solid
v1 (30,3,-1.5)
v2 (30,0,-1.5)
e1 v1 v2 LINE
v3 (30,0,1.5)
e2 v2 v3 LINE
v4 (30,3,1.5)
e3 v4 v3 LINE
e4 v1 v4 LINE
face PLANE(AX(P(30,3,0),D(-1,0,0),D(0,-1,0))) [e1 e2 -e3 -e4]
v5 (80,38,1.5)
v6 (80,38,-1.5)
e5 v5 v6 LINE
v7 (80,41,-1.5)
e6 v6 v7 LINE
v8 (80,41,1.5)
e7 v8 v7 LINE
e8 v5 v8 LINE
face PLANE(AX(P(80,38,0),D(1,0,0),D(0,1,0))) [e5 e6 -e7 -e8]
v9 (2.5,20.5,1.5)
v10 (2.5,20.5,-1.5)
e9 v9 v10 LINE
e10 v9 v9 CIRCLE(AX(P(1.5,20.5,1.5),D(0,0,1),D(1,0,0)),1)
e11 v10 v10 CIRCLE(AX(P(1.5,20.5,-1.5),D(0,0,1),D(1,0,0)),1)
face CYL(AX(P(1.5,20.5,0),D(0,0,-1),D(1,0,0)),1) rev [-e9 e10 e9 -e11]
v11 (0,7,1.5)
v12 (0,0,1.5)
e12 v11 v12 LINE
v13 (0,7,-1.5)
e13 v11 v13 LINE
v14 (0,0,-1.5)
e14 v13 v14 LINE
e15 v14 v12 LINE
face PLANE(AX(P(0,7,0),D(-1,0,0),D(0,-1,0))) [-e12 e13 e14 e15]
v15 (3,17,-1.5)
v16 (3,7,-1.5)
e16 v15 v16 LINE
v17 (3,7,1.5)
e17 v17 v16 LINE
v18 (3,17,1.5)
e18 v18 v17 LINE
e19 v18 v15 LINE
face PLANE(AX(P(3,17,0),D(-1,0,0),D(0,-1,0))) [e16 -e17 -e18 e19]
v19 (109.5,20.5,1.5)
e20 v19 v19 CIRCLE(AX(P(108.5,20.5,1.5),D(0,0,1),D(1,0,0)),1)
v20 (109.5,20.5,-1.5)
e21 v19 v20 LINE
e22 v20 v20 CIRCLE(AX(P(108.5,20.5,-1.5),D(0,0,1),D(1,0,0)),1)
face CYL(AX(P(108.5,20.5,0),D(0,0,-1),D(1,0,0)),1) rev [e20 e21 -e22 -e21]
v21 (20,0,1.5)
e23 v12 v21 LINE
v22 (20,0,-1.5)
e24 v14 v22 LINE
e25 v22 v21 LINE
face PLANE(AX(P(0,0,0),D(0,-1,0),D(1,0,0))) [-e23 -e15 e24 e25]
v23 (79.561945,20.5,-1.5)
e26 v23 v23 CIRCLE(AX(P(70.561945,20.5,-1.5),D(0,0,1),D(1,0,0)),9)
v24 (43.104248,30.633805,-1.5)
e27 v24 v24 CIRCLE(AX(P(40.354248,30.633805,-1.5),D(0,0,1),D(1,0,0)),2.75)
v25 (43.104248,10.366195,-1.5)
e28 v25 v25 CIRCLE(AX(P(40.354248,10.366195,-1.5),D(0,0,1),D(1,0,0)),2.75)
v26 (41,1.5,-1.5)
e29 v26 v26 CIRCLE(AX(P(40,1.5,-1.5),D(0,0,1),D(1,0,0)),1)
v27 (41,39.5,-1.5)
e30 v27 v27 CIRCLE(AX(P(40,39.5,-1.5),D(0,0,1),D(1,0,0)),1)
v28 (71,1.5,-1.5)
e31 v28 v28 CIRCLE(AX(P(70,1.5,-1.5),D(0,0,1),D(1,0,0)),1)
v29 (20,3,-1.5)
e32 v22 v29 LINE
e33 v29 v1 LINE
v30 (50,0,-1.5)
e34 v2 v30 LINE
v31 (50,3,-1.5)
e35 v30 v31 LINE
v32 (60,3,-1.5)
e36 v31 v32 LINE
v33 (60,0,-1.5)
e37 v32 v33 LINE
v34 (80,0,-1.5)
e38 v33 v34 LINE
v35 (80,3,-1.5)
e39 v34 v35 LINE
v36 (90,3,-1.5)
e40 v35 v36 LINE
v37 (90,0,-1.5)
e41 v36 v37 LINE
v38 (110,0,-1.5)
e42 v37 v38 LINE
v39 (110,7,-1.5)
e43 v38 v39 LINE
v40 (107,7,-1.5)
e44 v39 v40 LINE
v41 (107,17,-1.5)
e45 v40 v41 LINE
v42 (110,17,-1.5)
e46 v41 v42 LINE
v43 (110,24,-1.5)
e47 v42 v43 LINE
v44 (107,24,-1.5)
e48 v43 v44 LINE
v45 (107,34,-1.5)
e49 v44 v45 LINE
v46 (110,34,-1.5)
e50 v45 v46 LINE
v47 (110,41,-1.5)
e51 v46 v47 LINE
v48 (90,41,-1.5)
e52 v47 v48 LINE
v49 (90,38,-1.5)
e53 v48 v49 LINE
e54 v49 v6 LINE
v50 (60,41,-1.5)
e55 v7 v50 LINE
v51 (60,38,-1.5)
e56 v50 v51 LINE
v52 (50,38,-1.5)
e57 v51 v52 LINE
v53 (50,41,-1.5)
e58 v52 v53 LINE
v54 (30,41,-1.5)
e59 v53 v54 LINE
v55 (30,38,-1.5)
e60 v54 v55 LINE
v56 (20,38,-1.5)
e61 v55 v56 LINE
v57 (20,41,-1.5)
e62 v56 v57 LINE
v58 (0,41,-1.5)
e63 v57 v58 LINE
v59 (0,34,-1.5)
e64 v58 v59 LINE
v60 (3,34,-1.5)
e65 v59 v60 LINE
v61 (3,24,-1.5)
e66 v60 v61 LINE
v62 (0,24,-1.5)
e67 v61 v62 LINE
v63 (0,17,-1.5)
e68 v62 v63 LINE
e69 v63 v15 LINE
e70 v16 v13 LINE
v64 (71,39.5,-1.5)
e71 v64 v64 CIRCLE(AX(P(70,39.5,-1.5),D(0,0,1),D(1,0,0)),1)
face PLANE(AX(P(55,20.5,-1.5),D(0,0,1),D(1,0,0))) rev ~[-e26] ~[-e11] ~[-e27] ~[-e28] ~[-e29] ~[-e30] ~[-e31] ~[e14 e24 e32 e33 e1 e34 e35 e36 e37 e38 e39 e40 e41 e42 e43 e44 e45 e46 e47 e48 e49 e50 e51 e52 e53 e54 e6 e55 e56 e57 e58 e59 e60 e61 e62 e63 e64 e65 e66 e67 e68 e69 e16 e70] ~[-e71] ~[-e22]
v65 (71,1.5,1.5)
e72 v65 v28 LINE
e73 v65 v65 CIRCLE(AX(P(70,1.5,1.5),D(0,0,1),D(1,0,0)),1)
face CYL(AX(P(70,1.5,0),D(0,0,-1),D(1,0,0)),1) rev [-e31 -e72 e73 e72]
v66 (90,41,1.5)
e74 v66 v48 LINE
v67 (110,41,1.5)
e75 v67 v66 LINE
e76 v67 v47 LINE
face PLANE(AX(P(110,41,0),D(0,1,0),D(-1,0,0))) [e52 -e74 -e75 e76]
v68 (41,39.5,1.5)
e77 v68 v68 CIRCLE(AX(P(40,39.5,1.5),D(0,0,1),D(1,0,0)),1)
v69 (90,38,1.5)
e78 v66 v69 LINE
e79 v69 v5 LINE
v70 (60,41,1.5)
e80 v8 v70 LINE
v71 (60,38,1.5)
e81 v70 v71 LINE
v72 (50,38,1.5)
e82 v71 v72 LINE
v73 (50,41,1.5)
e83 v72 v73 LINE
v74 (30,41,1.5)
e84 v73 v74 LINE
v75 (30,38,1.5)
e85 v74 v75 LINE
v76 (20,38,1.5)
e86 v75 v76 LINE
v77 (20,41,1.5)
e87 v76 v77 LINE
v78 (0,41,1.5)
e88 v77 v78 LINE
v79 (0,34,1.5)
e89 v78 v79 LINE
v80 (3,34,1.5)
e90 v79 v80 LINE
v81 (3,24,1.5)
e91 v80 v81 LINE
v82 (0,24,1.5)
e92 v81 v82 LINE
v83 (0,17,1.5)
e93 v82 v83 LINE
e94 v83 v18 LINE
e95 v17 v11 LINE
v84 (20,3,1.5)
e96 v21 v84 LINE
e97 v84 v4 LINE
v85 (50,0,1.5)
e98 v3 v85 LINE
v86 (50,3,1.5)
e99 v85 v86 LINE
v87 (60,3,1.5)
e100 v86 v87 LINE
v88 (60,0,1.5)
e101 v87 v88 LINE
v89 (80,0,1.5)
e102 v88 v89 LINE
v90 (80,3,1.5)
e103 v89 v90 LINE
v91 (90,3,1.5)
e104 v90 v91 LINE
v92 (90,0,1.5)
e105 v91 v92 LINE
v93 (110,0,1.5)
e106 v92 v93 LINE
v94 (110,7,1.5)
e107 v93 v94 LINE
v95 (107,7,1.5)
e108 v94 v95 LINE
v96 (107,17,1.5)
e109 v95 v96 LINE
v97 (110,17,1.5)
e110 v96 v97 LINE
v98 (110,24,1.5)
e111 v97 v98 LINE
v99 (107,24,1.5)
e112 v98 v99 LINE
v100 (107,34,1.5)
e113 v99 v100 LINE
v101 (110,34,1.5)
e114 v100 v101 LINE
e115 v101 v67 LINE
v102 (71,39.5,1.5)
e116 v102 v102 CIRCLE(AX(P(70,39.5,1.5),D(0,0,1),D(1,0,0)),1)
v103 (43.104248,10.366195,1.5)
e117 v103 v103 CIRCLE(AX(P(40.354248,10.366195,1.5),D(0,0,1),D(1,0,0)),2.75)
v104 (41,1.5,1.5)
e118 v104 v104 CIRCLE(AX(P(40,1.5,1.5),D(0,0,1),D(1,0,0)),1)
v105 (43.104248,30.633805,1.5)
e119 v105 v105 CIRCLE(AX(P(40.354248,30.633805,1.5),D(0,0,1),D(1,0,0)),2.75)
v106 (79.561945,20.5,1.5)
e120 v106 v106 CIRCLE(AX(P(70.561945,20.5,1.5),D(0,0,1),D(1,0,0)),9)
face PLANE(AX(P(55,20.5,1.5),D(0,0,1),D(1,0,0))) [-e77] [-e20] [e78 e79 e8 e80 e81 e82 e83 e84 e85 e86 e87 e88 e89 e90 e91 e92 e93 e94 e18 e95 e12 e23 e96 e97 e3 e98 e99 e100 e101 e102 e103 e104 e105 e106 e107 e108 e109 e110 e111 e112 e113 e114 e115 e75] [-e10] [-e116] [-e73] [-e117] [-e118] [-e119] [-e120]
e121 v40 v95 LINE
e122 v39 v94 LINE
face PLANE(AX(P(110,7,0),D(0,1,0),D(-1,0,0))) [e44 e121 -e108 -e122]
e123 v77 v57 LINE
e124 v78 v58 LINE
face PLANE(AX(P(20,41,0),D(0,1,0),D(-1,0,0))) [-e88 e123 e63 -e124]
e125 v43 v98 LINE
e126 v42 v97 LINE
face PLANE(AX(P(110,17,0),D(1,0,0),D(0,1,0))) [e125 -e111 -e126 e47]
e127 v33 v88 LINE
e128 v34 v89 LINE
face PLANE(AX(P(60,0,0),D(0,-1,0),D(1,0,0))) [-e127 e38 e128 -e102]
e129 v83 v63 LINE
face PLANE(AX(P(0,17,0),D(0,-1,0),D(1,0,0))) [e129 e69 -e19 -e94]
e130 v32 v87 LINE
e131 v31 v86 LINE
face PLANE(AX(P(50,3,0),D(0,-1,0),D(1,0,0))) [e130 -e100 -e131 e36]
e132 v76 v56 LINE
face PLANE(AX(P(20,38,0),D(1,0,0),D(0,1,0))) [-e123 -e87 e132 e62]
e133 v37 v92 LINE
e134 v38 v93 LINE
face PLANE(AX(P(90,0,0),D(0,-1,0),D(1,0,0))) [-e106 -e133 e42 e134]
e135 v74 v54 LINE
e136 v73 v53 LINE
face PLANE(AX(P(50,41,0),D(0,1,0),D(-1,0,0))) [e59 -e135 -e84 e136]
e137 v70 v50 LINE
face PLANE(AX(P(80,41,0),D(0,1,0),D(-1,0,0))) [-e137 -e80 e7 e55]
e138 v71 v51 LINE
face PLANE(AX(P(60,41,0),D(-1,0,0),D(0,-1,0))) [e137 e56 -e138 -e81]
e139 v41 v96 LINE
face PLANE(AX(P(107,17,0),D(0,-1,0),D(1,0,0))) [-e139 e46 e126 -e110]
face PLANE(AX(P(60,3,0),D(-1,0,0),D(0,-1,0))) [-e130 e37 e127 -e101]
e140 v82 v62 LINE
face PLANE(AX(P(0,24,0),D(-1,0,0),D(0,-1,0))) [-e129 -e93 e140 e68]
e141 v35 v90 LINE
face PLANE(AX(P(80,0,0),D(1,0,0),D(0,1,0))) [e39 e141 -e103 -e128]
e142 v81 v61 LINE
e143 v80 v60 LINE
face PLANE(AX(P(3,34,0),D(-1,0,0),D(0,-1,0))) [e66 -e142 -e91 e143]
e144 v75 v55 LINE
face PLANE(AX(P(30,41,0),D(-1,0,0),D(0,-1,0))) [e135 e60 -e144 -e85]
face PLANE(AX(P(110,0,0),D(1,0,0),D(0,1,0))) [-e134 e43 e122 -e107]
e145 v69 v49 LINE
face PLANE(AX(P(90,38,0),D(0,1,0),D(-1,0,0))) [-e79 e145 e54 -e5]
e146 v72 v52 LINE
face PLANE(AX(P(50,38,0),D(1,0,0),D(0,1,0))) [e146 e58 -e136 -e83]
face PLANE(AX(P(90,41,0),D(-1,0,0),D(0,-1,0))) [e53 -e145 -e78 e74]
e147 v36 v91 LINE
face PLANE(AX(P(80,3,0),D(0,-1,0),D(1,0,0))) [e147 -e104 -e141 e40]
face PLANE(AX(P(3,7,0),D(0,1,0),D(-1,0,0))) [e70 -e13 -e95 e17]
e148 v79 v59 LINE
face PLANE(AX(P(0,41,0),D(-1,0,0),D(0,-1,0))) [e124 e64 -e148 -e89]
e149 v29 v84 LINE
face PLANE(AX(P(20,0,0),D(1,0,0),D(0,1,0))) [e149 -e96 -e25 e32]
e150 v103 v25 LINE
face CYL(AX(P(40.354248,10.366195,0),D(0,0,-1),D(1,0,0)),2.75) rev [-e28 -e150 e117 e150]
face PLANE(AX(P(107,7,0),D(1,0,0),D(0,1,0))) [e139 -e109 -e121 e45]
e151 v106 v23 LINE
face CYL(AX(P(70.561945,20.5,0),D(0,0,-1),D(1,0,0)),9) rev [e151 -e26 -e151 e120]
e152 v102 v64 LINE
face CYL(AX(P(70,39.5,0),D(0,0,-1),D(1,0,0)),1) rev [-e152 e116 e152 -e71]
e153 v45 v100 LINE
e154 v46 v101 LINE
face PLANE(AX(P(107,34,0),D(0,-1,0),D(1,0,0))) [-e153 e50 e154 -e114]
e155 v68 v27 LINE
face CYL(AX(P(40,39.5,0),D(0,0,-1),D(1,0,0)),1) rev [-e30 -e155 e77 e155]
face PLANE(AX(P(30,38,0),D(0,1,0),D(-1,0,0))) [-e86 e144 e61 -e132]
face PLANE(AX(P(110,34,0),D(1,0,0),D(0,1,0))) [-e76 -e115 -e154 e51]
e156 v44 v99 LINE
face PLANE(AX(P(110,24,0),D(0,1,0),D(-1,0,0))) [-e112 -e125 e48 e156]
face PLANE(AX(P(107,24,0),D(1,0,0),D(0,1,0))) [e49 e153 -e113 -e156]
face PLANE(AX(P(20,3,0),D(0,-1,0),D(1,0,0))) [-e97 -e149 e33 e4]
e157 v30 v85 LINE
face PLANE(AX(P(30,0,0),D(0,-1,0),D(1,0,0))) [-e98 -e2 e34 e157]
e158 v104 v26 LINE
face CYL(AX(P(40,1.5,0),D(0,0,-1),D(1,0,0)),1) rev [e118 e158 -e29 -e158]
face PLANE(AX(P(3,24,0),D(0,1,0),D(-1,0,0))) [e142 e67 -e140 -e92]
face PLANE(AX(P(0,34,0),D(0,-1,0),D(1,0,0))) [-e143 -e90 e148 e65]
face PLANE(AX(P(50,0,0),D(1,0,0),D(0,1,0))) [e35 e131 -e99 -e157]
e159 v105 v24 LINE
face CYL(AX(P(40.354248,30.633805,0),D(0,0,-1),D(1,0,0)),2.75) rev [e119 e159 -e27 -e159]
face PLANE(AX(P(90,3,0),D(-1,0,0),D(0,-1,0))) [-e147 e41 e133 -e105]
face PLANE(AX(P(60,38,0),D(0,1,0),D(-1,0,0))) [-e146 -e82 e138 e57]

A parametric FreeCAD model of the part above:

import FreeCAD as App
import Part
import Sketcher

V = App.Vector
Q = App.Units.Quantity


def add_polygon(sketch, points):
    """Adds a closed chain of lines whose ends are joined by coincident constraints."""
    first, n = sketch.GeometryCount, len(points)
    for a, b in zip(points, points[1:] + points[:1]):
        sketch.addGeometry(Part.LineSegment(App.Vector(*a, 0), App.Vector(*b, 0)), False)
    for i in range(n):
        sketch.addConstraint(Sketcher.Constraint("Coincident", first + i, 2, first + (i + 1) % n, 1))

doc = App.newDocument("Part")
body = doc.addObject("PartDesign::Body", "Body")

sketch1 = body.newObject("Sketcher::SketchObject", "Sketch")
sketch1.AttachmentSupport = (doc.getObject("XY_Plane"), [""])
sketch1.MapMode = "FlatFace"
add_polygon(sketch1, [(0, 7), (0, 0), (20, 0), (20, 3), (30, 3), (30, 0), (50, 0), (50, 3), (60, 3), (60, 0), (80, 0), (80, 3), (90, 3), (90, 0), (110, 0), (110, 7), (107, 7), (107, 17), (110, 17), (110, 24), (107, 24), (107, 34), (110, 34), (110, 41), (90, 41), (90, 38), (80, 38), (80, 41), (60, 41), (60, 38), (50, 38), (50, 41), (30, 41), (30, 38), (20, 38), (20, 41), (0, 41), (0, 34), (3, 34), (3, 24), (0, 24), (0, 17), (3, 17), (3, 7)])
sketch1.addGeometry(Part.Circle(V(40, 1.5, 0), V(0, 0, 1), 1), False)
sketch1.addGeometry(Part.Circle(V(40.4, 10.4, 0), V(0, 0, 1), 2.8), False)
sketch1.addGeometry(Part.Circle(V(70, 1.5, 0), V(0, 0, 1), 1), False)
sketch1.addGeometry(Part.Circle(V(1.5, 20.5, 0), V(0, 0, 1), 1), False)
sketch1.addGeometry(Part.Circle(V(40.4, 30.6, 0), V(0, 0, 1), 2.8), False)
sketch1.addGeometry(Part.Circle(V(40, 39.5, 0), V(0, 0, 1), 1), False)
sketch1.addGeometry(Part.Circle(V(70.6, 20.5, 0), V(0, 0, 1), 9), False)
sketch1.addGeometry(Part.Circle(V(108.5, 20.5, 0), V(0, 0, 1), 1), False)
sketch1.addGeometry(Part.Circle(V(70, 39.5, 0), V(0, 0, 1), 1), False)
sketch1.addConstraint([
    Sketcher.Constraint("Vertical", 0),
    Sketcher.Constraint("Horizontal", 1),
    Sketcher.Constraint("Vertical", 2),
    Sketcher.Constraint("Horizontal", 3),
    Sketcher.Constraint("Vertical", 4),
    Sketcher.Constraint("Horizontal", 5),
    Sketcher.Constraint("Vertical", 6),
    Sketcher.Constraint("Horizontal", 7),
    Sketcher.Constraint("Vertical", 8),
    Sketcher.Constraint("Horizontal", 9),
    Sketcher.Constraint("Vertical", 10),
    Sketcher.Constraint("Horizontal", 11),
    Sketcher.Constraint("Vertical", 12),
    Sketcher.Constraint("Horizontal", 13),
    Sketcher.Constraint("Vertical", 14),
    Sketcher.Constraint("Horizontal", 15),
    Sketcher.Constraint("Vertical", 16),
    Sketcher.Constraint("Horizontal", 17),
    Sketcher.Constraint("Vertical", 18),
    Sketcher.Constraint("Horizontal", 19),
    Sketcher.Constraint("Vertical", 20),
    Sketcher.Constraint("Horizontal", 21),
    Sketcher.Constraint("Vertical", 22),
    Sketcher.Constraint("Horizontal", 23),
    Sketcher.Constraint("Vertical", 24),
    Sketcher.Constraint("Horizontal", 25),
    Sketcher.Constraint("Vertical", 26),
    Sketcher.Constraint("Horizontal", 27),
    Sketcher.Constraint("Vertical", 28),
    Sketcher.Constraint("Horizontal", 29),
    Sketcher.Constraint("Vertical", 30),
    Sketcher.Constraint("Horizontal", 31),
    Sketcher.Constraint("Vertical", 32),
    Sketcher.Constraint("Horizontal", 33),
    Sketcher.Constraint("Vertical", 34),
    Sketcher.Constraint("Horizontal", 35),
    Sketcher.Constraint("Vertical", 36),
    Sketcher.Constraint("Horizontal", 37),
    Sketcher.Constraint("Vertical", 38),
    Sketcher.Constraint("Horizontal", 39),
    Sketcher.Constraint("Vertical", 40),
    Sketcher.Constraint("Horizontal", 41),
    Sketcher.Constraint("Vertical", 42),
    Sketcher.Constraint("Horizontal", 43),
    Sketcher.Constraint("Coincident", 0, 2, -1, 1),
    Sketcher.Constraint("Equal", 44, 46),
    Sketcher.Constraint("Equal", 46, 47),
    Sketcher.Constraint("Equal", 45, 48),
    Sketcher.Constraint("Equal", 47, 49),
    Sketcher.Constraint("Equal", 49, 51),
    Sketcher.Constraint("Equal", 51, 52),
    Sketcher.Constraint("PointOnObject", 4, 2, -1),
    Sketcher.Constraint("PointOnObject", 8, 2, -1),
    Sketcher.Constraint("PointOnObject", 12, 2, -1),
    Sketcher.Constraint("PointOnObject", 35, 2, -2),
    Sketcher.Constraint("PointOnObject", 39, 2, -2),
    Sketcher.Constraint("Horizontal", 44, 3, 46, 3),
    Sketcher.Constraint("Horizontal", 47, 3, 50, 3),
    Sketcher.Constraint("Horizontal", 50, 3, 51, 3),
    Sketcher.Constraint("Horizontal", 49, 3, 52, 3),
    Sketcher.Constraint("Horizontal", 3, 2, 6, 2),
    Sketcher.Constraint("Horizontal", 7, 2, 10, 2),
    Sketcher.Constraint("Horizontal", 23, 2, 26, 2),
    Sketcher.Constraint("Horizontal", 25, 2, 28, 2),
    Sketcher.Constraint("Horizontal", 27, 2, 30, 2),
    Sketcher.Constraint("Horizontal", 29, 2, 32, 2),
    Sketcher.Constraint("Horizontal", 31, 2, 34, 2),
    Sketcher.Constraint("Horizontal", 21, 2, 36, 2),
    Sketcher.Constraint("Horizontal", 19, 2, 38, 2),
    Sketcher.Constraint("Horizontal", 17, 2, 40, 2),
    Sketcher.Constraint("Horizontal", 15, 2, 42, 2),
    Sketcher.Constraint("Vertical", 45, 3, 48, 3),
    Sketcher.Constraint("Vertical", 44, 3, 49, 3),
    Sketcher.Constraint("Vertical", 46, 3, 52, 3),
    Sketcher.Constraint("Vertical", 14, 2, 17, 2),
    Sketcher.Constraint("Vertical", 16, 2, 19, 2),
    Sketcher.Constraint("Vertical", 18, 2, 21, 2),
    Sketcher.Constraint("Vertical", 12, 2, 23, 2),
    Sketcher.Constraint("Vertical", 10, 2, 25, 2),
    Sketcher.Constraint("Vertical", 8, 2, 27, 2),
    Sketcher.Constraint("Vertical", 6, 2, 29, 2),
    Sketcher.Constraint("Vertical", 4, 2, 31, 2),
    Sketcher.Constraint("Vertical", 2, 2, 33, 2),
    Sketcher.Constraint("Vertical", 38, 2, 41, 2),
    Sketcher.Constraint("Equal", 1, 5),
    Sketcher.Constraint("Equal", 3, 7),
    Sketcher.Constraint("Equal", 5, 9),
    Sketcher.Constraint("Equal", 7, 11),
    Sketcher.Constraint("Equal", 9, 13),
    Sketcher.Constraint("Equal", 21, 37),
    Sketcher.Constraint("Equal", 43, 2),
    Sketcher.Constraint("Equal", 33, 16),
    Sketcher.Constraint("Equal", 14, 18),
    Sketcher.Constraint("Equal", 16, 20),
    Sketcher.Constraint("Equal", 18, 22),
    Sketcher.Constraint("Equal", 12, 24),
    Sketcher.Constraint("Diameter", 44, Q("2 mm")),
    Sketcher.Constraint("Diameter", 50, Q("18 mm")),
    Sketcher.Constraint("Diameter", 45, Q("5.5 mm")),
    Sketcher.Constraint("DistanceX", 1, 1, 1, 2, Q("20 mm")),
    Sketcher.Constraint("DistanceX", 3, 1, 3, 2, Q("10 mm")),
    Sketcher.Constraint("DistanceX", 15, 2, 15, 1, Q("3 mm")),
    Sketcher.Constraint("DistanceY", 0, 2, 0, 1, Q("7 mm")),
    Sketcher.Constraint("DistanceX", -1, 1, 44, 3, Q("40 mm")),
    Sketcher.Constraint("DistanceX", -1, 1, 46, 3, Q("70 mm")),
    Sketcher.Constraint("DistanceY", 44, 3, 47, 3, Q("19 mm")),
    Sketcher.Constraint("DistanceY", 44, 3, 49, 3, Q("38 mm")),
    Sketcher.Constraint("DistanceY", -1, 1, 44, 3, Q("1.5 mm")),
    Sketcher.Constraint("DistanceX", -1, 1, 47, 3, Q("1.5 mm")),
    Sketcher.Constraint("DistanceX", -1, 1, 51, 3, Q("108.5 mm")),
    Sketcher.Constraint("DistanceY", 45, 3, 48, 3, Q("20.26761 mm")),
    Sketcher.Constraint("DistanceX", 45, 3, 51, 3, Q("68.145752 mm")),
    Sketcher.Constraint("DistanceY", -1, 1, 45, 3, Q("10.366195 mm")),
    Sketcher.Constraint("DistanceX", -1, 1, 50, 3, Q("70.561945 mm")),
])
pad1 = body.newObject("PartDesign::Pad", "Pad")
pad1.Profile = sketch1
pad1.Length = 3
pad1.Midplane = True

doc.recompute()
